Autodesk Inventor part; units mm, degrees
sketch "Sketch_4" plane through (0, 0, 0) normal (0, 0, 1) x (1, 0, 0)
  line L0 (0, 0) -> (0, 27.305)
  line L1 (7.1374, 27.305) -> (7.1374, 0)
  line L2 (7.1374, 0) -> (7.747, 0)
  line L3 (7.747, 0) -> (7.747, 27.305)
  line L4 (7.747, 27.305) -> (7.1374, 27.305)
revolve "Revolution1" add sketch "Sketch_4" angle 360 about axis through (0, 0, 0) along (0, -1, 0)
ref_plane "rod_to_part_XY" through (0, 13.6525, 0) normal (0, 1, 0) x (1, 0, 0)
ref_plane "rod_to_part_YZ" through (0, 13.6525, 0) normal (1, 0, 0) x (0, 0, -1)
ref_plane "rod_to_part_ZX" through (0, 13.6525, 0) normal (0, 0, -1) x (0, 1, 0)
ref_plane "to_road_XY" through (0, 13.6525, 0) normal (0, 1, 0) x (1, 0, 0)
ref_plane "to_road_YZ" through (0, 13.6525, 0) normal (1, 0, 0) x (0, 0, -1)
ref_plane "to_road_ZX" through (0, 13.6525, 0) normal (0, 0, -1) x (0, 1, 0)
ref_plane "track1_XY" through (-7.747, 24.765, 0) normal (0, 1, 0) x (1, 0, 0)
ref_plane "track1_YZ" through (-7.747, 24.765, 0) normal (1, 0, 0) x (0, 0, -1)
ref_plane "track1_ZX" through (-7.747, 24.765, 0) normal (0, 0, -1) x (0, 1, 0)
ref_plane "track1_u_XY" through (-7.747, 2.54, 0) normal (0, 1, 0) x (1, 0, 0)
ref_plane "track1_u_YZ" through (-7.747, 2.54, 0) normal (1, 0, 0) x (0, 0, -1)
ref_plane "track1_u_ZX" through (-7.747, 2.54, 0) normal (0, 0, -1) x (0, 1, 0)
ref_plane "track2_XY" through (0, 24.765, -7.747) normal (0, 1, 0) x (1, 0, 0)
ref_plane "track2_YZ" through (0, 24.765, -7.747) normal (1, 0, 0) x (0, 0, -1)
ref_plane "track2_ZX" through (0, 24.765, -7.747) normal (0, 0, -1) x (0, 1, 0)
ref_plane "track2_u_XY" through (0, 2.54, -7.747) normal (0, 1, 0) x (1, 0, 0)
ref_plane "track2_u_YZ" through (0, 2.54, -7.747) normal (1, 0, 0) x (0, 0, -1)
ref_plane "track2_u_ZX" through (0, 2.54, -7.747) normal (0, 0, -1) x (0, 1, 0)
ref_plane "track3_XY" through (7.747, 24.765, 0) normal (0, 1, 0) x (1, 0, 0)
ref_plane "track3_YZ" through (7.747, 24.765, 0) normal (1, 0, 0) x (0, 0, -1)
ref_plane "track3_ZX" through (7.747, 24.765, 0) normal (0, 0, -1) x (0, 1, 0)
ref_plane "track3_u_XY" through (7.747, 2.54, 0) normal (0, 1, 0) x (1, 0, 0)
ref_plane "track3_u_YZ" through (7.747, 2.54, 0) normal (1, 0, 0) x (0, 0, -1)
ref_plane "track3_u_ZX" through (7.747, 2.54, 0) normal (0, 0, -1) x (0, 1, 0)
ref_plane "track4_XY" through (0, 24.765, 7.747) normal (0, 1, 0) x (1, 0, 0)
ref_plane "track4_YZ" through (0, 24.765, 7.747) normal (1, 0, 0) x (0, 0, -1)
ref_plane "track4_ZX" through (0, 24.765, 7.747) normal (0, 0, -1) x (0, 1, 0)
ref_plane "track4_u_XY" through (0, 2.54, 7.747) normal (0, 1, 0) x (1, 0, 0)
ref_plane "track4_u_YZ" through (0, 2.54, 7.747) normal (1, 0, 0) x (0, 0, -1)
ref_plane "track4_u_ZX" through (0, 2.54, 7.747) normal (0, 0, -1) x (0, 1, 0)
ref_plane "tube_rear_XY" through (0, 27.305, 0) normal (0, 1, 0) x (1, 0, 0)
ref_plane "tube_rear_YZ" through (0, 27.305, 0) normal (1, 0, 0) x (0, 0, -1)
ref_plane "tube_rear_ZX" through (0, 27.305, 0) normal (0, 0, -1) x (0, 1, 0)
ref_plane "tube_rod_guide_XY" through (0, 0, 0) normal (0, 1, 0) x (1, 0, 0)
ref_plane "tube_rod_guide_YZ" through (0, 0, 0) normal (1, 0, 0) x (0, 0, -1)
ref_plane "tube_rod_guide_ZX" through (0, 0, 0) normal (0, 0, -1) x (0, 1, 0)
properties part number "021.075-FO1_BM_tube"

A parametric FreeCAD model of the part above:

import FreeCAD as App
import Part
import Sketcher
Q = App.Units.Quantity


def add_polygon(sketch, points):
    """Adds a closed chain of lines whose ends are joined by coincident constraints."""
    first, n = sketch.GeometryCount, len(points)
    for a, b in zip(points, points[1:] + points[:1]):
        sketch.addGeometry(Part.LineSegment(App.Vector(*a, 0), App.Vector(*b, 0)), False)
    for i in range(n):
        sketch.addConstraint(Sketcher.Constraint("Coincident", first + i, 2, first + (i + 1) % n, 1))

doc = App.newDocument("Part")
params = doc.addObject("Spreadsheet::Sheet", "Params")
for row, (alias, value) in enumerate([
    ("sketch1_width", "0.024 in"),
    ("sketch1_height", "1.075 in"),
    ("revolution_angle", "360 deg"),
], start=1):
    params.set(f"A{row}", alias)
    params.set(f"B{row}", "=" + value)
    params.setAlias(f"B{row}", alias)

body = doc.addObject("PartDesign::Body", "Body")

sketch1 = doc.addObject("Sketcher::SketchObject", "Sketch")
body.addObject(sketch1)
sketch1.AttachmentSupport = (doc.XY_Plane, [""])
sketch1.MapMode = "FlatFace"
add_polygon(sketch1, [(7.7, 27.3), (7.1, 27.3), (7.1, 0), (7.7, 0)])
sketch1.addConstraint([
    Sketcher.Constraint("Horizontal", 0),
    Sketcher.Constraint("Vertical", 1),
    Sketcher.Constraint("Horizontal", 2),
    Sketcher.Constraint("Vertical", 3),
    Sketcher.Constraint("PointOnObject", 1, 2, -1),
    Sketcher.Constraint("DistanceX", 0, 2, 0, 1, Q("0.024 in")),
    Sketcher.Constraint("DistanceY", 1, 2, 1, 1, Q("1.075 in")),
    Sketcher.Constraint("DistanceX", -1, 1, 0, 2, Q("0.281 in")),
])
sketch1.setExpression("Constraints[9]", "Params.sketch1_width")
sketch1.setExpression("Constraints[10]", "Params.sketch1_height")
revolution = doc.addObject("PartDesign::Revolution", "Revolution")
body.addObject(revolution)
revolution.Profile = sketch1
revolution.ReferenceAxis = (sketch1, ["V_Axis"])
revolution.setExpression("Angle", "Params.revolution_angle")

doc.recompute()
